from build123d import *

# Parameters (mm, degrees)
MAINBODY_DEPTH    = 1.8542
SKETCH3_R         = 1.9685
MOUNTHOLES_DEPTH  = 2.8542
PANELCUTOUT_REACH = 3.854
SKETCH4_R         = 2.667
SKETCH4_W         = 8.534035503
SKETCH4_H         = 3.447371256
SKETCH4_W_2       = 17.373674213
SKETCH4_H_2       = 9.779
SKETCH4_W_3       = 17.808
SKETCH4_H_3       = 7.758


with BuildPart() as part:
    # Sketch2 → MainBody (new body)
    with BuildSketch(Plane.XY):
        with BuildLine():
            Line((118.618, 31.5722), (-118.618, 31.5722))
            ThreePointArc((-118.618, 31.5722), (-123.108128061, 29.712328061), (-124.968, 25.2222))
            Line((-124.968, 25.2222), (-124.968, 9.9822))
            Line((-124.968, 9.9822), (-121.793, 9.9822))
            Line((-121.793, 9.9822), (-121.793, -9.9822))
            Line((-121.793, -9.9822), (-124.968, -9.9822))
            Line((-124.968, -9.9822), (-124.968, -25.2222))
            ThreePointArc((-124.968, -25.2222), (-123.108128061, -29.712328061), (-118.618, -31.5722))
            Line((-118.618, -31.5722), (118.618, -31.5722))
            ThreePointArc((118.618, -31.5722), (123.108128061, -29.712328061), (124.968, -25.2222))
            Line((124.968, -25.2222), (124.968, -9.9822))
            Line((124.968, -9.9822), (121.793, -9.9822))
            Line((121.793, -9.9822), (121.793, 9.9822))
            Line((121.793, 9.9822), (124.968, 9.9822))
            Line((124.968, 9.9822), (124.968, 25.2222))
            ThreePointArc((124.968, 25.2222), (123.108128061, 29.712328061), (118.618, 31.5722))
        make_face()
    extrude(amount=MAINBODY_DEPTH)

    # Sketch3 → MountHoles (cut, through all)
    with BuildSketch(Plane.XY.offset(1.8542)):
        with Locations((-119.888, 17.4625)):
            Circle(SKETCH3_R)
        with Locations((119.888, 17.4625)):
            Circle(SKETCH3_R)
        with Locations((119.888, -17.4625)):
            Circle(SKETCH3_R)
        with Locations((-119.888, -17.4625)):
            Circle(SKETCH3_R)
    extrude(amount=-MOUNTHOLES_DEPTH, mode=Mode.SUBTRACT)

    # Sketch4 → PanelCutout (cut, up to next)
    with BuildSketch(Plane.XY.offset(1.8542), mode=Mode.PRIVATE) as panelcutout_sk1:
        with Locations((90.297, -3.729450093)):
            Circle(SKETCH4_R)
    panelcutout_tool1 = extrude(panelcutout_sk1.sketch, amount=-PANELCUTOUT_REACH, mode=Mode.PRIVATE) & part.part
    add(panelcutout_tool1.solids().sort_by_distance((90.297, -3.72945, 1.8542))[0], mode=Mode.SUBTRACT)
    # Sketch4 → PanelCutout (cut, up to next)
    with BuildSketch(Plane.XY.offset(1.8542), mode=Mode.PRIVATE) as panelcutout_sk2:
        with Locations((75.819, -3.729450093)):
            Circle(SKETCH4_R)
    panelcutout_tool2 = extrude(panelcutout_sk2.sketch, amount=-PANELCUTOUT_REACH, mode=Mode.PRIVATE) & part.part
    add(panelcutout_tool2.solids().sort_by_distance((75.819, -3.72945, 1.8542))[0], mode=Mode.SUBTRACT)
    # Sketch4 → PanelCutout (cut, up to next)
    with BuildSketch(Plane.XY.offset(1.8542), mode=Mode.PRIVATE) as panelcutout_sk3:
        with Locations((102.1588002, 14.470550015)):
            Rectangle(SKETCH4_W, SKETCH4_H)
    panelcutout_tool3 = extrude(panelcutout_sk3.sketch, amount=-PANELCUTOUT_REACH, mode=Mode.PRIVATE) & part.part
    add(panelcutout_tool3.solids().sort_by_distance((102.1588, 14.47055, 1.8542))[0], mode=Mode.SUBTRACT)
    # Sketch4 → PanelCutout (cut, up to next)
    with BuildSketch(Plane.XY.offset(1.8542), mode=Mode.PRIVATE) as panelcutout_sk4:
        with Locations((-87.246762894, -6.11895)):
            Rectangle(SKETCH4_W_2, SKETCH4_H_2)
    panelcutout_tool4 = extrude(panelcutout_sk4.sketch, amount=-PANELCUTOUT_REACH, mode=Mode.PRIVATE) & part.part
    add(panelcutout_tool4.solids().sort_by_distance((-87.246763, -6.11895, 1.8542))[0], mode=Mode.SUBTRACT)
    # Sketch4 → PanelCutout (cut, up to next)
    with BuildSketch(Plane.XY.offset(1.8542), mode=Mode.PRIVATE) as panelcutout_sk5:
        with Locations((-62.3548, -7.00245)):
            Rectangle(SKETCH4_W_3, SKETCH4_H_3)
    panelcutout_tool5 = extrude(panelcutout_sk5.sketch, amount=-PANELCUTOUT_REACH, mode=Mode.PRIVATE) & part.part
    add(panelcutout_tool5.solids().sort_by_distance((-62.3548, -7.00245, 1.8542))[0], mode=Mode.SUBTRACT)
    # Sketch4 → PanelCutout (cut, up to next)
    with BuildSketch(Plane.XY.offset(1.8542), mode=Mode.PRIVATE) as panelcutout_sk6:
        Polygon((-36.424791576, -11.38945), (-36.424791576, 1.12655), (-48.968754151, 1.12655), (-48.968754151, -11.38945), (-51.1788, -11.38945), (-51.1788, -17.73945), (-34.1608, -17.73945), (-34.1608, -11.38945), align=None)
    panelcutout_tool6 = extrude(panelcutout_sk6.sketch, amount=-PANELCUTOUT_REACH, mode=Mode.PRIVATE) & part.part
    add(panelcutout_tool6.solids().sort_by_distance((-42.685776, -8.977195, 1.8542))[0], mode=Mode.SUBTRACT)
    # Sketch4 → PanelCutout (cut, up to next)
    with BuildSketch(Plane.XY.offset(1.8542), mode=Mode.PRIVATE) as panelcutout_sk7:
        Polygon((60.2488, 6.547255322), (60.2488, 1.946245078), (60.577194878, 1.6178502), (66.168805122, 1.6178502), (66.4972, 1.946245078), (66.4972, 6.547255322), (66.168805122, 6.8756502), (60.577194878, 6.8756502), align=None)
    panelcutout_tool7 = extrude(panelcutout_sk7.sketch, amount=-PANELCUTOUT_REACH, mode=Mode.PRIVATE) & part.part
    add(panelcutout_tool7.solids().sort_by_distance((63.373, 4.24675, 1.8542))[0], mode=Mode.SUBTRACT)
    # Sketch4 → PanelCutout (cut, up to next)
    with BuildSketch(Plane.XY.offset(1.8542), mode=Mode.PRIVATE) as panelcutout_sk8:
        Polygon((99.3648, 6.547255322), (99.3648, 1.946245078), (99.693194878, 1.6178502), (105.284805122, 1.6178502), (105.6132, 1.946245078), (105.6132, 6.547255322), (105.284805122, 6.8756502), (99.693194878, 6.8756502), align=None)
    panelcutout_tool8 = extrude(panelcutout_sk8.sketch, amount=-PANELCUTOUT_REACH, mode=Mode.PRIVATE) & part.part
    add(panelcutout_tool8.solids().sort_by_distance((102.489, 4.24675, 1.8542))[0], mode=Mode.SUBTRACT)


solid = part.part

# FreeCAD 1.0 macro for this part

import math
import FreeCAD as App
import Part
import Sketcher
Q = App.Units.Quantity

doc = App.newDocument("Part")
params = doc.addObject("Spreadsheet::Sheet", "Params")
for row, (alias, value) in enumerate([
    ("sketch1_radius", "0.25 in"),
    ("sketch1_height", "0.6 in"),
    ("sketch1_width", "9.34 in"),
    ("sketch1_width2", "0.125 in"),
    ("sketch1_height2", "0.786 in"),
    ("pad1_length", "0.073 in"),
    ("sketch2_diameter", "0.155 in"),
    ("sketch3_diameter", "0.21 in"),
    ("sketch4_diameter", "0.21 in"),
    ("sketch6_height", "0.385 in"),
    ("sketch8_width", "0.67 in"),
    ("sketch8_height", "0.25 in"),
], start=1):
    params.set(f"A{row}", alias)
    params.set(f"B{row}", "=" + value)
    params.setAlias(f"B{row}", alias)

body = doc.addObject("PartDesign::Body", "Body")

# Sketch on XY plane
sketch1 = body.newObject("Sketcher::SketchObject", "Sketch")
sketch1.AttachmentSupport = (doc.getObject("XY_Plane"), [""])
sketch1.MapMode = "FlatFace"
sketch1.addGeometry(Part.LineSegment(App.Vector(118.618, 31.5722, 0), App.Vector(-118.618, 31.5722, 0)), False)
sketch1.addGeometry(Part.ArcOfCircle(Part.Circle(App.Vector(-118.618, 25.2222, 0), App.Vector(0, 0, 1), 6.35), math.radians(90), math.radians(180)), False)
sketch1.addGeometry(Part.LineSegment(App.Vector(-124.968, 25.2222, 0), App.Vector(-124.968, 9.9822, 0)), False)
sketch1.addGeometry(Part.LineSegment(App.Vector(-124.968, 9.9822, 0), App.Vector(-121.793, 9.9822, 0)), False)
sketch1.addGeometry(Part.LineSegment(App.Vector(-121.793, 9.9822, 0), App.Vector(-121.793, -9.9822, 0)), False)
sketch1.addGeometry(Part.LineSegment(App.Vector(-121.793, -9.9822, 0), App.Vector(-124.968, -9.9822, 0)), False)
sketch1.addGeometry(Part.LineSegment(App.Vector(-124.968, -9.9822, 0), App.Vector(-124.968, -25.2222, 0)), False)
sketch1.addGeometry(Part.ArcOfCircle(Part.Circle(App.Vector(-118.618, -25.2222, 0), App.Vector(0, 0, 1), 6.35), math.radians(180), math.radians(270)), False)
sketch1.addGeometry(Part.LineSegment(App.Vector(-118.618, -31.5722, 0), App.Vector(118.618, -31.5722, 0)), False)
sketch1.addGeometry(Part.ArcOfCircle(Part.Circle(App.Vector(118.618, -25.2222, 0), App.Vector(0, 0, 1), 6.35), math.radians(-90), math.radians(0)), False)
sketch1.addGeometry(Part.LineSegment(App.Vector(124.968, -25.2222, 0), App.Vector(124.968, -9.9822, 0)), False)
sketch1.addGeometry(Part.LineSegment(App.Vector(124.968, -9.9822, 0), App.Vector(121.793, -9.9822, 0)), False)
sketch1.addGeometry(Part.LineSegment(App.Vector(121.793, -9.9822, 0), App.Vector(121.793, 9.9822, 0)), False)
sketch1.addGeometry(Part.LineSegment(App.Vector(121.793, 9.9822, 0), App.Vector(124.968, 9.9822, 0)), False)
sketch1.addGeometry(Part.LineSegment(App.Vector(124.968, 9.9822, 0), App.Vector(124.968, 25.2222, 0)), False)
sketch1.addGeometry(Part.ArcOfCircle(Part.Circle(App.Vector(118.618, 25.2222, 0), App.Vector(0, 0, 1), 6.35), math.radians(0), math.radians(90)), False)
sketch1.addConstraint(Sketcher.Constraint("Tangent", 0, 2, 1, 1))
sketch1.addConstraint(Sketcher.Constraint("Tangent", 1, 2, 2, 1))
sketch1.addConstraint(Sketcher.Constraint("Coincident", 2, 2, 3, 1))
sketch1.addConstraint(Sketcher.Constraint("Coincident", 3, 2, 4, 1))
sketch1.addConstraint(Sketcher.Constraint("Coincident", 4, 2, 5, 1))
sketch1.addConstraint(Sketcher.Constraint("Coincident", 5, 2, 6, 1))
sketch1.addConstraint(Sketcher.Constraint("Tangent", 6, 2, 7, 1))
sketch1.addConstraint(Sketcher.Constraint("Tangent", 7, 2, 8, 1))
sketch1.addConstraint(Sketcher.Constraint("Tangent", 8, 2, 9, 1))
sketch1.addConstraint(Sketcher.Constraint("Tangent", 9, 2, 10, 1))
sketch1.addConstraint(Sketcher.Constraint("Coincident", 10, 2, 11, 1))
sketch1.addConstraint(Sketcher.Constraint("Coincident", 11, 2, 12, 1))
sketch1.addConstraint(Sketcher.Constraint("Coincident", 12, 2, 13, 1))
sketch1.addConstraint(Sketcher.Constraint("Coincident", 13, 2, 14, 1))
sketch1.addConstraint(Sketcher.Constraint("Tangent", 14, 2, 15, 1))
sketch1.addConstraint(Sketcher.Constraint("Tangent", 15, 2, 0, 1))
sketch1.addConstraint(Sketcher.Constraint("Horizontal", 0))
sketch1.addConstraint(Sketcher.Constraint("Vertical", 2))
sketch1.addConstraint(Sketcher.Constraint("Horizontal", 3))
sketch1.addConstraint(Sketcher.Constraint("Vertical", 4))
sketch1.addConstraint(Sketcher.Constraint("Horizontal", 5))
sketch1.addConstraint(Sketcher.Constraint("Vertical", 6))
sketch1.addConstraint(Sketcher.Constraint("Horizontal", 8))
sketch1.addConstraint(Sketcher.Constraint("Vertical", 10))
sketch1.addConstraint(Sketcher.Constraint("Horizontal", 11))
sketch1.addConstraint(Sketcher.Constraint("Vertical", 12))
sketch1.addConstraint(Sketcher.Constraint("Horizontal", 13))
sketch1.addConstraint(Sketcher.Constraint("Vertical", 14))
sketch1.addConstraint(Sketcher.Constraint("Equal", 1, 7))
sketch1.addConstraint(Sketcher.Constraint("Equal", 7, 9))
sketch1.addConstraint(Sketcher.Constraint("Equal", 9, 15))
sketch1.addConstraint(Sketcher.Constraint("Symmetric", 1, 3, 9, 3, -1, 1))
sketch1.addConstraint(Sketcher.Constraint("Symmetric", 3, 2, 11, 2, -1, 1))
sketch1.addConstraint(Sketcher.Constraint("Symmetric", 5, 2, 13, 2, -1, 1))
sketch1.addConstraint(Sketcher.Constraint("Symmetric", 5, 2, 10, 2, -2))
sketch1.addConstraint(Sketcher.Constraint("Radius", 1, Q("0.25 in")))
sketch1.addConstraint(Sketcher.Constraint("DistanceY", 2, 2, 2, 1, Q("0.6 in")))
sketch1.addConstraint(Sketcher.Constraint("DistanceX", 0, 2, 0, 1, Q("9.34 in")))
sketch1.addConstraint(Sketcher.Constraint("DistanceX", 3, 1, 3, 2, Q("0.125 in")))
sketch1.addConstraint(Sketcher.Constraint("DistanceY", 4, 2, 4, 1, Q("0.786 in")))
sketch1.setExpression("Constraints[35]", "Params.sketch1_radius")
sketch1.setExpression("Constraints[36]", "Params.sketch1_height")
sketch1.setExpression("Constraints[37]", "Params.sketch1_width")
sketch1.setExpression("Constraints[38]", "Params.sketch1_width2")
sketch1.setExpression("Constraints[39]", "Params.sketch1_height2")
pad1 = body.newObject("PartDesign::Pad", "Pad")
pad1.Profile = sketch1
pad1.setExpression("Length", "Params.pad1_length")

# Sketch on XY plane
sketch2 = body.newObject("Sketcher::SketchObject", "Sketch001")
sketch2.AttachmentSupport = (doc.getObject("XY_Plane"), [""])
sketch2.MapMode = "FlatFace"
sketch2.AttachmentOffset = App.Placement(App.Vector(0, 0, 0.073 * 25.4), App.Rotation())
sketch2.addGeometry(Part.Circle(App.Vector(-119.888, 17.4625, 0), App.Vector(0, 0, 1), 1.9685), False)
sketch2.addGeometry(Part.Circle(App.Vector(119.888, 17.4625, 0), App.Vector(0, 0, 1), 1.9685), False)
sketch2.addGeometry(Part.Circle(App.Vector(119.888, -17.4625, 0), App.Vector(0, 0, 1), 1.9685), False)
sketch2.addGeometry(Part.Circle(App.Vector(-119.888, -17.4625, 0), App.Vector(0, 0, 1), 1.9685), False)
sketch2.addConstraint(Sketcher.Constraint("Equal", 0, 1))
sketch2.addConstraint(Sketcher.Constraint("Equal", 1, 2))
sketch2.addConstraint(Sketcher.Constraint("Equal", 2, 3))
sketch2.addConstraint(Sketcher.Constraint("Symmetric", 0, 3, 2, 3, -1, 1))
sketch2.addConstraint(Sketcher.Constraint("Symmetric", 1, 3, 3, 3, -1, 1))
sketch2.addConstraint(Sketcher.Constraint("Symmetric", 0, 3, 1, 3, -2))
sketch2.addConstraint(Sketcher.Constraint("Diameter", 0, Q("0.155 in")))
sketch2.addConstraint(Sketcher.Constraint("DistanceX", 0, 3, -1, 1, Q("4.72 in")))
sketch2.addConstraint(Sketcher.Constraint("DistanceY", -1, 1, 0, 3, Q("0.6875 in")))
sketch2.setExpression("Constraints[6]", "Params.sketch2_diameter")
pocket1 = body.newObject("PartDesign::Pocket", "Pocket")
pocket1.Profile = sketch2
pocket1.Type = "ThroughAll"

# Sketch on XY plane
sketch3 = body.newObject("Sketcher::SketchObject", "Sketch002")
sketch3.AttachmentSupport = (doc.getObject("XY_Plane"), [""])
sketch3.MapMode = "FlatFace"
sketch3.AttachmentOffset = App.Placement(App.Vector(0, 0, 0.073 * 25.4), App.Rotation())
sketch3.addGeometry(Part.Circle(App.Vector(90.297, -3.72945, 0), App.Vector(0, 0, 1), 2.667), False)
sketch3.addConstraint(Sketcher.Constraint("Diameter", 0, Q("0.21 in")))
sketch3.addConstraint(Sketcher.Constraint("DistanceX", -1, 1, 0, 3, Q("3.555 in")))
sketch3.addConstraint(Sketcher.Constraint("DistanceY", 0, 3, -1, 1, Q("3.72945 mm")))
sketch3.setExpression("Constraints[0]", "Params.sketch3_diameter")
pocket2 = body.newObject("PartDesign::Pocket", "Pocket001")
pocket2.Profile = sketch3
pocket2.Type = "UpToFirst"

# Sketch on XY plane
sketch4 = body.newObject("Sketcher::SketchObject", "Sketch003")
sketch4.AttachmentSupport = (doc.getObject("XY_Plane"), [""])
sketch4.MapMode = "FlatFace"
sketch4.AttachmentOffset = App.Placement(App.Vector(0, 0, 0.073 * 25.4), App.Rotation())
sketch4.addGeometry(Part.Circle(App.Vector(75.819, -3.72945, 0), App.Vector(0, 0, 1), 2.667), False)
sketch4.addConstraint(Sketcher.Constraint("Diameter", 0, Q("0.21 in")))
sketch4.addConstraint(Sketcher.Constraint("DistanceX", -1, 1, 0, 3, Q("2.985 in")))
sketch4.addConstraint(Sketcher.Constraint("DistanceY", 0, 3, -1, 1, Q("3.72945 mm")))
sketch4.setExpression("Constraints[0]", "Params.sketch4_diameter")
pocket3 = body.newObject("PartDesign::Pocket", "Pocket002")
pocket3.Profile = sketch4
pocket3.Type = "UpToFirst"

# Sketch on XY plane
sketch5 = body.newObject("Sketcher::SketchObject", "Sketch004")
sketch5.AttachmentSupport = (doc.getObject("XY_Plane"), [""])
sketch5.MapMode = "FlatFace"
sketch5.AttachmentOffset = App.Placement(App.Vector(0, 0, 0.073 * 25.4), App.Rotation())
sketch5.addGeometry(Part.LineSegment(App.Vector(97.891782, 16.194236, 0), App.Vector(97.891782, 12.746864, 0)), False)
sketch5.addGeometry(Part.LineSegment(App.Vector(97.891782, 12.746864, 0), App.Vector(106.425818, 12.746864, 0)), False)
sketch5.addGeometry(Part.LineSegment(App.Vector(106.425818, 12.746864, 0), App.Vector(106.425818, 16.194236, 0)), False)
sketch5.addGeometry(Part.LineSegment(App.Vector(106.425818, 16.194236, 0), App.Vector(97.891782, 16.194236, 0)), False)
sketch5.addConstraint(Sketcher.Constraint("Coincident", 0, 2, 1, 1))
sketch5.addConstraint(Sketcher.Constraint("Coincident", 1, 2, 2, 1))
sketch5.addConstraint(Sketcher.Constraint("Coincident", 2, 2, 3, 1))
sketch5.addConstraint(Sketcher.Constraint("Coincident", 3, 2, 0, 1))
sketch5.addConstraint(Sketcher.Constraint("Vertical", 0))
sketch5.addConstraint(Sketcher.Constraint("Horizontal", 1))
sketch5.addConstraint(Sketcher.Constraint("Vertical", 2))
sketch5.addConstraint(Sketcher.Constraint("Horizontal", 3))
sketch5.addConstraint(Sketcher.Constraint("DistanceY", 0, 2, 0, 1, Q("3.447371 mm")))
sketch5.addConstraint(Sketcher.Constraint("DistanceX", 1, 1, 1, 2, Q("8.534036 mm")))
sketch5.addConstraint(Sketcher.Constraint("DistanceX", -1, 1, 0, 2, Q("97.891782 mm")))
sketch5.addConstraint(Sketcher.Constraint("DistanceY", -1, 1, 0, 2, Q("12.746864 mm")))
pocket4 = body.newObject("PartDesign::Pocket", "Pocket003")
pocket4.Profile = sketch5
pocket4.Type = "UpToFirst"

# Sketch on XY plane
sketch6 = body.newObject("Sketcher::SketchObject", "Sketch005")
sketch6.AttachmentSupport = (doc.getObject("XY_Plane"), [""])
sketch6.MapMode = "FlatFace"
sketch6.AttachmentOffset = App.Placement(App.Vector(0, 0, 0.073 * 25.4), App.Rotation())
sketch6.addGeometry(Part.LineSegment(App.Vector(-95.9336, -1.22945, 0), App.Vector(-95.9336, -11.00845, 0)), False)
sketch6.addGeometry(Part.LineSegment(App.Vector(-95.9336, -11.00845, 0), App.Vector(-78.559926, -11.00845, 0)), False)
sketch6.addGeometry(Part.LineSegment(App.Vector(-78.559926, -11.00845, 0), App.Vector(-78.559926, -1.22945, 0)), False)
sketch6.addGeometry(Part.LineSegment(App.Vector(-78.559926, -1.22945, 0), App.Vector(-95.9336, -1.22945, 0)), False)
sketch6.addConstraint(Sketcher.Constraint("Coincident", 0, 2, 1, 1))
sketch6.addConstraint(Sketcher.Constraint("Coincident", 1, 2, 2, 1))
sketch6.addConstraint(Sketcher.Constraint("Coincident", 2, 2, 3, 1))
sketch6.addConstraint(Sketcher.Constraint("Coincident", 3, 2, 0, 1))
sketch6.addConstraint(Sketcher.Constraint("Vertical", 0))
sketch6.addConstraint(Sketcher.Constraint("Horizontal", 1))
sketch6.addConstraint(Sketcher.Constraint("Vertical", 2))
sketch6.addConstraint(Sketcher.Constraint("Horizontal", 3))
sketch6.addConstraint(Sketcher.Constraint("DistanceY", 0, 2, 0, 1, Q("0.385 in")))
sketch6.addConstraint(Sketcher.Constraint("DistanceX", 0, 2, -1, 1, Q("95.9336 mm")))
sketch6.addConstraint(Sketcher.Constraint("DistanceX", 1, 1, 1, 2, Q("17.373674 mm")))
sketch6.addConstraint(Sketcher.Constraint("DistanceY", 0, 2, -1, 1, Q("11.00845 mm")))
sketch6.setExpression("Constraints[8]", "Params.sketch6_height")
pocket5 = body.newObject("PartDesign::Pocket", "Pocket004")
pocket5.Profile = sketch6
pocket5.Type = "UpToFirst"

# Sketch on XY plane
sketch7 = body.newObject("Sketcher::SketchObject", "Sketch006")
sketch7.AttachmentSupport = (doc.getObject("XY_Plane"), [""])
sketch7.MapMode = "FlatFace"
sketch7.AttachmentOffset = App.Placement(App.Vector(0, 0, 0.073 * 25.4), App.Rotation())
sketch7.addGeometry(Part.LineSegment(App.Vector(-71.2588, -3.12345, 0), App.Vector(-71.2588, -10.88145, 0)), False)
sketch7.addGeometry(Part.LineSegment(App.Vector(-71.2588, -10.88145, 0), App.Vector(-53.4508, -10.88145, 0)), False)
sketch7.addGeometry(Part.LineSegment(App.Vector(-53.4508, -10.88145, 0), App.Vector(-53.4508, -3.12345, 0)), False)
sketch7.addGeometry(Part.LineSegment(App.Vector(-53.4508, -3.12345, 0), App.Vector(-71.2588, -3.12345, 0)), False)
sketch7.addConstraint(Sketcher.Constraint("Coincident", 0, 2, 1, 1))
sketch7.addConstraint(Sketcher.Constraint("Coincident", 1, 2, 2, 1))
sketch7.addConstraint(Sketcher.Constraint("Coincident", 2, 2, 3, 1))
sketch7.addConstraint(Sketcher.Constraint("Coincident", 3, 2, 0, 1))
sketch7.addConstraint(Sketcher.Constraint("Vertical", 0))
sketch7.addConstraint(Sketcher.Constraint("Horizontal", 1))
sketch7.addConstraint(Sketcher.Constraint("Vertical", 2))
sketch7.addConstraint(Sketcher.Constraint("Horizontal", 3))
sketch7.addConstraint(Sketcher.Constraint("DistanceX", 1, 1, 1, 2, Q("17.808 mm")))
sketch7.addConstraint(Sketcher.Constraint("DistanceY", 0, 2, 0, 1, Q("7.758 mm")))
sketch7.addConstraint(Sketcher.Constraint("DistanceX", 0, 2, -1, 1, Q("71.2588 mm")))
sketch7.addConstraint(Sketcher.Constraint("DistanceY", 0, 2, -1, 1, Q("10.88145 mm")))
pocket6 = body.newObject("PartDesign::Pocket", "Pocket005")
pocket6.Profile = sketch7
pocket6.Type = "UpToFirst"

# Sketch on XY plane
sketch8 = body.newObject("Sketcher::SketchObject", "Sketch007")
sketch8.AttachmentSupport = (doc.getObject("XY_Plane"), [""])
sketch8.MapMode = "FlatFace"
sketch8.AttachmentOffset = App.Placement(App.Vector(0, 0, 0.073 * 25.4), App.Rotation())
sketch8.addGeometry(Part.LineSegment(App.Vector(-36.424792, -11.38945, 0), App.Vector(-36.424792, 1.12655, 0)), False)
sketch8.addGeometry(Part.LineSegment(App.Vector(-36.424792, 1.12655, 0), App.Vector(-48.968754, 1.12655, 0)), False)
sketch8.addGeometry(Part.LineSegment(App.Vector(-48.968754, 1.12655, 0), App.Vector(-48.968754, -11.38945, 0)), False)
sketch8.addGeometry(Part.LineSegment(App.Vector(-48.968754, -11.38945, 0), App.Vector(-51.1788, -11.38945, 0)), False)
sketch8.addGeometry(Part.LineSegment(App.Vector(-51.1788, -11.38945, 0), App.Vector(-51.1788, -17.73945, 0)), False)
sketch8.addGeometry(Part.LineSegment(App.Vector(-51.1788, -17.73945, 0), App.Vector(-34.1608, -17.73945, 0)), False)
sketch8.addGeometry(Part.LineSegment(App.Vector(-34.1608, -17.73945, 0), App.Vector(-34.1608, -11.38945, 0)), False)
sketch8.addGeometry(Part.LineSegment(App.Vector(-34.1608, -11.38945, 0), App.Vector(-36.424792, -11.38945, 0)), False)
sketch8.addConstraint(Sketcher.Constraint("Coincident", 0, 2, 1, 1))
sketch8.addConstraint(Sketcher.Constraint("Coincident", 1, 2, 2, 1))
sketch8.addConstraint(Sketcher.Constraint("Coincident", 2, 2, 3, 1))
sketch8.addConstraint(Sketcher.Constraint("Coincident", 3, 2, 4, 1))
sketch8.addConstraint(Sketcher.Constraint("Coincident", 4, 2, 5, 1))
sketch8.addConstraint(Sketcher.Constraint("Coincident", 5, 2, 6, 1))
sketch8.addConstraint(Sketcher.Constraint("Coincident", 6, 2, 7, 1))
sketch8.addConstraint(Sketcher.Constraint("Coincident", 7, 2, 0, 1))
sketch8.addConstraint(Sketcher.Constraint("Vertical", 0))
sketch8.addConstraint(Sketcher.Constraint("Horizontal", 1))
sketch8.addConstraint(Sketcher.Constraint("Vertical", 2))
sketch8.addConstraint(Sketcher.Constraint("Horizontal", 3))
sketch8.addConstraint(Sketcher.Constraint("Vertical", 4))
sketch8.addConstraint(Sketcher.Constraint("Horizontal", 5))
sketch8.addConstraint(Sketcher.Constraint("Vertical", 6))
sketch8.addConstraint(Sketcher.Constraint("Horizontal", 7))
sketch8.addConstraint(Sketcher.Constraint("Horizontal", 3, 2, 6, 2))
sketch8.addConstraint(Sketcher.Constraint("DistanceX", 5, 1, 5, 2, Q("0.67 in")))
sketch8.addConstraint(Sketcher.Constraint("DistanceY", 4, 2, 4, 1, Q("0.25 in")))
sketch8.addConstraint(Sketcher.Constraint("DistanceY", 0, 1, 0, 2, Q("12.516 mm")))
sketch8.addConstraint(Sketcher.Constraint("DistanceX", 7, 2, 7, 1, Q("2.263992 mm")))
sketch8.addConstraint(Sketcher.Constraint("DistanceX", 3, 2, -1, 1, Q("51.1788 mm")))
sketch8.addConstraint(Sketcher.Constraint("DistanceX", 1, 2, 1, 1, Q("12.543963 mm")))
sketch8.addConstraint(Sketcher.Constraint("DistanceY", -1, 1, 0, 2, Q("1.12655 mm")))
sketch8.setExpression("Constraints[17]", "Params.sketch8_width")
sketch8.setExpression("Constraints[18]", "Params.sketch8_height")
pocket7 = body.newObject("PartDesign::Pocket", "Pocket006")
pocket7.Profile = sketch8
pocket7.Type = "UpToFirst"

# Sketch on XY plane
sketch9 = body.newObject("Sketcher::SketchObject", "Sketch008")
sketch9.AttachmentSupport = (doc.getObject("XY_Plane"), [""])
sketch9.MapMode = "FlatFace"
sketch9.AttachmentOffset = App.Placement(App.Vector(0, 0, 0.073 * 25.4), App.Rotation())
sketch9.addGeometry(Part.LineSegment(App.Vector(60.2488, 6.547255, 0), App.Vector(60.2488, 1.946245, 0)), False)
sketch9.addGeometry(Part.LineSegment(App.Vector(60.2488, 1.946245, 0), App.Vector(60.577195, 1.61785, 0)), False)
sketch9.addGeometry(Part.LineSegment(App.Vector(60.577195, 1.61785, 0), App.Vector(66.168805, 1.61785, 0)), False)
sketch9.addGeometry(Part.LineSegment(App.Vector(66.168805, 1.61785, 0), App.Vector(66.4972, 1.946245, 0)), False)
sketch9.addGeometry(Part.LineSegment(App.Vector(66.4972, 1.946245, 0), App.Vector(66.4972, 6.547255, 0)), False)
sketch9.addGeometry(Part.LineSegment(App.Vector(66.4972, 6.547255, 0), App.Vector(66.168805, 6.87565, 0)), False)
sketch9.addGeometry(Part.LineSegment(App.Vector(66.168805, 6.87565, 0), App.Vector(60.577195, 6.87565, 0)), False)
sketch9.addGeometry(Part.LineSegment(App.Vector(60.577195, 6.87565, 0), App.Vector(60.2488, 6.547255, 0)), False)
sketch9.addConstraint(Sketcher.Constraint("Coincident", 0, 2, 1, 1))
sketch9.addConstraint(Sketcher.Constraint("Coincident", 1, 2, 2, 1))
sketch9.addConstraint(Sketcher.Constraint("Coincident", 2, 2, 3, 1))
sketch9.addConstraint(Sketcher.Constraint("Coincident", 3, 2, 4, 1))
sketch9.addConstraint(Sketcher.Constraint("Coincident", 4, 2, 5, 1))
sketch9.addConstraint(Sketcher.Constraint("Coincident", 5, 2, 6, 1))
sketch9.addConstraint(Sketcher.Constraint("Coincident", 6, 2, 7, 1))
sketch9.addConstraint(Sketcher.Constraint("Coincident", 7, 2, 0, 1))
sketch9.addConstraint(Sketcher.Constraint("Vertical", 0))
sketch9.addConstraint(Sketcher.Constraint("Horizontal", 2))
sketch9.addConstraint(Sketcher.Constraint("Vertical", 4))
sketch9.addConstraint(Sketcher.Constraint("Horizontal", 6))
sketch9.addConstraint(Sketcher.Constraint("Perpendicular", 1, 3))
sketch9.addConstraint(Sketcher.Constraint("Perpendicular", 3, 5))
sketch9.addConstraint(Sketcher.Constraint("Perpendicular", 5, 7))
sketch9.addConstraint(Sketcher.Constraint("Horizontal", 0, 2, 3, 2))
sketch9.addConstraint(Sketcher.Constraint("Horizontal", 4, 2, 7, 2))
sketch9.addConstraint(Sketcher.Constraint("Vertical", 2, 2, 5, 2))
sketch9.addConstraint(Sketcher.Constraint("Vertical", 1, 2, 6, 2))
sketch9.addConstraint(Sketcher.Constraint("DistanceX", -1, 1, 0, 2, Q("2.372 in")))
sketch9.addConstraint(Sketcher.Constraint("DistanceX", -1, 1, 3, 2, Q("2.618 in")))
sketch9.addConstraint(Sketcher.Constraint("DistanceY", 2, 2, 5, 2, Q("0.207 in")))
sketch9.addConstraint(Sketcher.Constraint("DistanceX", 2, 1, 2, 2, Q("5.59161 mm")))
sketch9.addConstraint(Sketcher.Constraint("DistanceY", -1, 1, 1, 2, Q("1.61785 mm")))
pocket8 = body.newObject("PartDesign::Pocket", "Pocket007")
pocket8.Profile = sketch9
pocket8.Type = "UpToFirst"

# Sketch on XY plane
sketch10 = body.newObject("Sketcher::SketchObject", "Sketch009")
sketch10.AttachmentSupport = (doc.getObject("XY_Plane"), [""])
sketch10.MapMode = "FlatFace"
sketch10.AttachmentOffset = App.Placement(App.Vector(0, 0, 0.073 * 25.4), App.Rotation())
sketch10.addGeometry(Part.LineSegment(App.Vector(99.3648, 6.547255, 0), App.Vector(99.3648, 1.946245, 0)), False)
sketch10.addGeometry(Part.LineSegment(App.Vector(99.3648, 1.946245, 0), App.Vector(99.693195, 1.61785, 0)), False)
sketch10.addGeometry(Part.LineSegment(App.Vector(99.693195, 1.61785, 0), App.Vector(105.284805, 1.61785, 0)), False)
sketch10.addGeometry(Part.LineSegment(App.Vector(105.284805, 1.61785, 0), App.Vector(105.6132, 1.946245, 0)), False)
sketch10.addGeometry(Part.LineSegment(App.Vector(105.6132, 1.946245, 0), App.Vector(105.6132, 6.547255, 0)), False)
sketch10.addGeometry(Part.LineSegment(App.Vector(105.6132, 6.547255, 0), App.Vector(105.284805, 6.87565, 0)), False)
sketch10.addGeometry(Part.LineSegment(App.Vector(105.284805, 6.87565, 0), App.Vector(99.693195, 6.87565, 0)), False)
sketch10.addGeometry(Part.LineSegment(App.Vector(99.693195, 6.87565, 0), App.Vector(99.3648, 6.547255, 0)), False)
sketch10.addConstraint(Sketcher.Constraint("Coincident", 0, 2, 1, 1))
sketch10.addConstraint(Sketcher.Constraint("Coincident", 1, 2, 2, 1))
sketch10.addConstraint(Sketcher.Constraint("Coincident", 2, 2, 3, 1))
sketch10.addConstraint(Sketcher.Constraint("Coincident", 3, 2, 4, 1))
sketch10.addConstraint(Sketcher.Constraint("Coincident", 4, 2, 5, 1))
sketch10.addConstraint(Sketcher.Constraint("Coincident", 5, 2, 6, 1))
sketch10.addConstraint(Sketcher.Constraint("Coincident", 6, 2, 7, 1))
sketch10.addConstraint(Sketcher.Constraint("Coincident", 7, 2, 0, 1))
sketch10.addConstraint(Sketcher.Constraint("Vertical", 0))
sketch10.addConstraint(Sketcher.Constraint("Horizontal", 2))
sketch10.addConstraint(Sketcher.Constraint("Vertical", 4))
sketch10.addConstraint(Sketcher.Constraint("Horizontal", 6))
sketch10.addConstraint(Sketcher.Constraint("Perpendicular", 1, 3))
sketch10.addConstraint(Sketcher.Constraint("Perpendicular", 3, 5))
sketch10.addConstraint(Sketcher.Constraint("Perpendicular", 5, 7))
sketch10.addConstraint(Sketcher.Constraint("Horizontal", 0, 2, 3, 2))
sketch10.addConstraint(Sketcher.Constraint("Horizontal", 4, 2, 7, 2))
sketch10.addConstraint(Sketcher.Constraint("Vertical", 2, 2, 5, 2))
sketch10.addConstraint(Sketcher.Constraint("Vertical", 1, 2, 6, 2))
sketch10.addConstraint(Sketcher.Constraint("DistanceX", -1, 1, 0, 2, Q("3.912 in")))
sketch10.addConstraint(Sketcher.Constraint("DistanceX", -1, 1, 3, 2, Q("4.158 in")))
sketch10.addConstraint(Sketcher.Constraint("DistanceY", 2, 2, 5, 2, Q("0.207 in")))
sketch10.addConstraint(Sketcher.Constraint("DistanceX", 2, 1, 2, 2, Q("5.59161 mm")))
sketch10.addConstraint(Sketcher.Constraint("DistanceY", -1, 1, 1, 2, Q("1.61785 mm")))
pocket9 = body.newObject("PartDesign::Pocket", "Pocket008")
pocket9.Profile = sketch10
pocket9.Type = "UpToFirst"

doc.recompute()
